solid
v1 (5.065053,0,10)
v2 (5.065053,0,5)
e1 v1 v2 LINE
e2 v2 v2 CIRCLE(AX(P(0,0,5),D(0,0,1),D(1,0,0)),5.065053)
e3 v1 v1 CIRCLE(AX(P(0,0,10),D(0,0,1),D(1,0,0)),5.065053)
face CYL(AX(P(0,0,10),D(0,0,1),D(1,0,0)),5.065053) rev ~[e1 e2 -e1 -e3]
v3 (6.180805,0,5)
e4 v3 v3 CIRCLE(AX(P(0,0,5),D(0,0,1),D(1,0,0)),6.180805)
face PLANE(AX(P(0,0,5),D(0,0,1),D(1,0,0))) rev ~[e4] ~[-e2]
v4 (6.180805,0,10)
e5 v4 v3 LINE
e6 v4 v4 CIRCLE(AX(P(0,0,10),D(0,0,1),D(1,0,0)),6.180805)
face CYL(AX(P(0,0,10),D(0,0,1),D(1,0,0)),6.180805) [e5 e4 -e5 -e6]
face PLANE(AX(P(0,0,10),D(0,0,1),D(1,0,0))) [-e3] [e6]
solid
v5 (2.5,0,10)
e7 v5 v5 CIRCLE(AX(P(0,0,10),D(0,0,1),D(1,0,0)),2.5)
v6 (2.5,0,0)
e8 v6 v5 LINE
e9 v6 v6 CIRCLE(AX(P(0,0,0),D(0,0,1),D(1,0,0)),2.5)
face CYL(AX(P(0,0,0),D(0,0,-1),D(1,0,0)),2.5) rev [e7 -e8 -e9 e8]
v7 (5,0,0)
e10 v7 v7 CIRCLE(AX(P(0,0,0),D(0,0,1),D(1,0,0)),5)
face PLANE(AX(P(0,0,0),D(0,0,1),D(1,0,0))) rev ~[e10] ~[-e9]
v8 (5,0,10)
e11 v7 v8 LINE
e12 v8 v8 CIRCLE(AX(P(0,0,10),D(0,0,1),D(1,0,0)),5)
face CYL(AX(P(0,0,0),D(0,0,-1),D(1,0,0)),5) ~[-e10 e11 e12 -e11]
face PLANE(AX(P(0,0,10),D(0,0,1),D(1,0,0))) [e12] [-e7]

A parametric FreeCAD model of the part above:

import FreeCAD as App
import Part
import Sketcher

V = App.Vector
Q = App.Units.Quantity

doc = App.newDocument("Part")
body = doc.addObject("PartDesign::Body", "Body")

# Sketch on XY plane
sketch1 = doc.addObject("Sketcher::SketchObject", "Sketch")
body.addObject(sketch1)
sketch1.AttachmentSupport = (doc.XY_Plane, [""])
sketch1.MapMode = "FlatFace"
sketch1.addGeometry([
    Part.Circle(V(0, 0, 0), V(0, 0, 1), 5),
    Part.Circle(V(0, 0, 0), V(0, 0, 1), 2.5),
], False)
sketch1.addConstraint([
    Sketcher.Constraint("Coincident", 0, 3, -1, 1),
    Sketcher.Constraint("Coincident", 1, 3, -1, 1),
    Sketcher.Constraint("Diameter", 0, Q("10 mm")),
    Sketcher.Constraint("Diameter", 1, Q("5 mm")),
])
pad1 = doc.addObject("PartDesign::Pad", "Pad")
body.addObject(pad1)
pad1.Profile = sketch1
pad1.Length = 10
body2 = doc.addObject("PartDesign::Body", "Body001")

# Sketch on XY plane
sketch2 = doc.addObject("Sketcher::SketchObject", "Sketch001")
body2.addObject(sketch2)
sketch2.AttachmentSupport = (doc.getObject("XY_Plane001"), [""])
sketch2.MapMode = "FlatFace"
sketch2.AttachmentOffset = App.Placement(V(0, 0, 10), App.Rotation())
sketch2.addGeometry([
    Part.Circle(V(0, 0, 0), V(0, 0, 1), 6),
    Part.Circle(V(0, 0, 0), V(0, 0, 1), 5),
], False)
sketch2.addConstraint([
    Sketcher.Constraint("Coincident", 0, 3, -1, 1),
    Sketcher.Constraint("Coincident", 1, 3, -1, 1),
    Sketcher.Constraint("Diameter", 0, Q("12.36161 mm")),
    Sketcher.Constraint("Diameter", 1, Q("10.130106 mm")),
])
pad2 = doc.addObject("PartDesign::Pad", "Pad001")
body2.addObject(pad2)
pad2.Profile = sketch2
pad2.Length = 5
pad2.Reversed = True

doc.recompute()
